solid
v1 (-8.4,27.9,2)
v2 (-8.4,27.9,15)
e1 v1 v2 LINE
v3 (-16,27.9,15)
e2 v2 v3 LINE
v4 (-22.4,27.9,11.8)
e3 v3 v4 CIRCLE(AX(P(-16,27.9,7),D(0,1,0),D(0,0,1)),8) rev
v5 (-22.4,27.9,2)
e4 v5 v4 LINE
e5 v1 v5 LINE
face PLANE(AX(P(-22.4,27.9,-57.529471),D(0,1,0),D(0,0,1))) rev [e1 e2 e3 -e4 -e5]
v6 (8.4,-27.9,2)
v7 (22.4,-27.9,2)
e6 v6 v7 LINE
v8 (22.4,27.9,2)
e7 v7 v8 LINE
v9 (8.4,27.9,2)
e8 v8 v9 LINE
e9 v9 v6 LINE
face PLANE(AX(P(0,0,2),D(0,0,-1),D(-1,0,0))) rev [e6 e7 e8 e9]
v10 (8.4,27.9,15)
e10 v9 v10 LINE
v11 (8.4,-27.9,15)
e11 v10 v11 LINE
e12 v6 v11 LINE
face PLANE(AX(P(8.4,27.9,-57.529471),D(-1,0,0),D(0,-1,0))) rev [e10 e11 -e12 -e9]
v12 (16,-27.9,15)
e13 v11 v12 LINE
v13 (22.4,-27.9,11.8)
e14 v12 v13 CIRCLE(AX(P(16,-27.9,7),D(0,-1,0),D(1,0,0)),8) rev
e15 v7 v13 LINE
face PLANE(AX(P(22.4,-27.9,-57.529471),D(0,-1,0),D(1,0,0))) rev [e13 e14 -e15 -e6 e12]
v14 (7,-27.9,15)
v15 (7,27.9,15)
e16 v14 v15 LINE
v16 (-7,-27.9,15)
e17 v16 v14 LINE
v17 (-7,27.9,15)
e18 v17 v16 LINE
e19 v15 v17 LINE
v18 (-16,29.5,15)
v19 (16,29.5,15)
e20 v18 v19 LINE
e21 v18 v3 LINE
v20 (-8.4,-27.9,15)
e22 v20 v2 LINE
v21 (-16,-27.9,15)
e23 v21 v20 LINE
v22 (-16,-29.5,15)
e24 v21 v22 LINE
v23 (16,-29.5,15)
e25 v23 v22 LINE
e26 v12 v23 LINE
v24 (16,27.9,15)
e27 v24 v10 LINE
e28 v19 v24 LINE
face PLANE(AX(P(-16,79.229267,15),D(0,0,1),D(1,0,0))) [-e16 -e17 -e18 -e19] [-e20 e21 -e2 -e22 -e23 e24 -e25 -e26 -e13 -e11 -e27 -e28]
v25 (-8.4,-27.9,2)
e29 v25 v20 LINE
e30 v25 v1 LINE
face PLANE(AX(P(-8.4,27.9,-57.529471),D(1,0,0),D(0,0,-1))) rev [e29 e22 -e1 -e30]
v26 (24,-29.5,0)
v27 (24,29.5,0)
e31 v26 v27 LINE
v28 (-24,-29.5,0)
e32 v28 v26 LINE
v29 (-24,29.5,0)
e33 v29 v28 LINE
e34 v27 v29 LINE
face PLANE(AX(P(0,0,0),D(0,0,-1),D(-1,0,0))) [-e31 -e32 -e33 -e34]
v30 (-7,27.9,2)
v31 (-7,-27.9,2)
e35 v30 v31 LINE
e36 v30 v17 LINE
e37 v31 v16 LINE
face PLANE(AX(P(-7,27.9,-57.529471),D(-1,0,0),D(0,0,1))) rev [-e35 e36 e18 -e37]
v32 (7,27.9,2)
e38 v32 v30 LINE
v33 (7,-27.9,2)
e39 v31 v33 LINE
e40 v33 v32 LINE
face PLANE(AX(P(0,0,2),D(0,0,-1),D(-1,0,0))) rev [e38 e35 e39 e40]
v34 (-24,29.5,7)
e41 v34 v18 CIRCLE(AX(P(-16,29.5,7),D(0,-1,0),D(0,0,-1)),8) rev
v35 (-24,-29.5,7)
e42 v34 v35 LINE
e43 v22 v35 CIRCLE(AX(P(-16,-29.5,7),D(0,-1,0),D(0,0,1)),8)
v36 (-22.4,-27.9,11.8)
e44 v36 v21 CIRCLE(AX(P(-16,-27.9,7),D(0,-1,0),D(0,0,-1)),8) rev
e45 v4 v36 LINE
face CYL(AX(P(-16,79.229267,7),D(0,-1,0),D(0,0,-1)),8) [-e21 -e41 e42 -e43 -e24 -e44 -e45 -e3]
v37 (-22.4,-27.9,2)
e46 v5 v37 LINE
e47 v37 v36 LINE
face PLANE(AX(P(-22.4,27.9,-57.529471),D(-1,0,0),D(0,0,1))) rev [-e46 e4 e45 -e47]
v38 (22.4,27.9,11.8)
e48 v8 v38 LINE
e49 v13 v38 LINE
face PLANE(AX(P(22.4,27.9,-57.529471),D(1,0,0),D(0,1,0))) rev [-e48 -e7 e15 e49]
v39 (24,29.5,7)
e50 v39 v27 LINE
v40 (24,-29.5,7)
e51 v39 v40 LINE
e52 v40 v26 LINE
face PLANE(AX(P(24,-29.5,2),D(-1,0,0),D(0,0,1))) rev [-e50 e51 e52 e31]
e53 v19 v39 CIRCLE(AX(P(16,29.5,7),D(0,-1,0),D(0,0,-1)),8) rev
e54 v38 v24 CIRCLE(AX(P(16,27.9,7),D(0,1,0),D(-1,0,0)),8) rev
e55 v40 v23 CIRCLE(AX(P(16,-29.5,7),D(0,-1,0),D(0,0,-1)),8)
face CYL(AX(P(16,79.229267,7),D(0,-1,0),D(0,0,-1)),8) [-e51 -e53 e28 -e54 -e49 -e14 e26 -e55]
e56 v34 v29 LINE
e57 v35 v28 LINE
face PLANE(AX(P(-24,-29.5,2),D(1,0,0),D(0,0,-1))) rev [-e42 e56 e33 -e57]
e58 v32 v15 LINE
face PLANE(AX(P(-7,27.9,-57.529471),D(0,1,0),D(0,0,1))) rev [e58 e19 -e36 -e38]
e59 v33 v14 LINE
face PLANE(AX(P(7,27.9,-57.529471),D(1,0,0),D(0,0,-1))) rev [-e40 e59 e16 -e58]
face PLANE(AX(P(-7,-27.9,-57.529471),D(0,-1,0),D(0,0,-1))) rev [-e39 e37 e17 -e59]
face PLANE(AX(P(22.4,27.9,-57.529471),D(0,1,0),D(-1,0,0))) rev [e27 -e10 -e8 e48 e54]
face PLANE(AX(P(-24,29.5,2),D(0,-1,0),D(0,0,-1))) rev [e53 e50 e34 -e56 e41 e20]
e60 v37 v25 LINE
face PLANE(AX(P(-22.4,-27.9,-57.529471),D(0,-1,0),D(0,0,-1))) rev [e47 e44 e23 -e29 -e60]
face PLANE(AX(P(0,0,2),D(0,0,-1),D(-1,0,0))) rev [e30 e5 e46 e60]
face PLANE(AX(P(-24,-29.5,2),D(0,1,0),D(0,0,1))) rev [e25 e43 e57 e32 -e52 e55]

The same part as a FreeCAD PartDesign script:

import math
import FreeCAD as App
import Part
import Sketcher

V = App.Vector
Q = App.Units.Quantity

doc = App.newDocument("Part")
body = doc.addObject("PartDesign::Body", "Body")

# Sketch on XY plane
sketch1 = doc.addObject("Sketcher::SketchObject", "Sketch")
body.addObject(sketch1)
sketch1.AttachmentSupport = (doc.XY_Plane, [""])
sketch1.MapMode = "FlatFace"
sketch1.addGeometry(Part.LineSegment(V(-24, 30, 0), V(-24, -30, 0)), False)
sketch1.addGeometry(Part.LineSegment(V(-24, -30, 0), V(24, -30, 0)), False)
sketch1.addGeometry(Part.LineSegment(V(24, -30, 0), V(24, 30, 0)), False)
sketch1.addGeometry(Part.LineSegment(V(24, 30, 0), V(-24, 30, 0)), False)
sketch1.addConstraint(Sketcher.Constraint("Coincident", 0, 2, 1, 1))
sketch1.addConstraint(Sketcher.Constraint("Coincident", 1, 2, 2, 1))
sketch1.addConstraint(Sketcher.Constraint("Coincident", 2, 2, 3, 1))
sketch1.addConstraint(Sketcher.Constraint("Coincident", 3, 2, 0, 1))
sketch1.addConstraint(Sketcher.Constraint("Vertical", 0))
sketch1.addConstraint(Sketcher.Constraint("Horizontal", 1))
sketch1.addConstraint(Sketcher.Constraint("Vertical", 2))
sketch1.addConstraint(Sketcher.Constraint("Horizontal", 3))
sketch1.addConstraint(Sketcher.Constraint("Symmetric", 0, 2, 2, 2, -1, 1))
sketch1.addConstraint(Sketcher.Constraint("DistanceX", 1, 1, 1, 2, Q("48 mm")))
sketch1.addConstraint(Sketcher.Constraint("DistanceY", 0, 2, 0, 1, Q("59 mm")))
pad1 = doc.addObject("PartDesign::Pad", "Pad")
body.addObject(pad1)
pad1.Profile = sketch1
pad1.Length = 2

# Sketch on XZ plane
sketch2 = doc.addObject("Sketcher::SketchObject", "Sketch001")
body.addObject(sketch2)
sketch2.AttachmentSupport = (doc.XZ_Plane, [""])
sketch2.MapMode = "FlatFace"
sketch2.AttachmentOffset = App.Placement(V(0, 0, 29.5), App.Rotation())
sketch2.addGeometry(Part.LineSegment(V(16, 15, 0), V(-16, 15, 0)), False)
sketch2.addGeometry(Part.ArcOfCircle(Part.Circle(V(-16, 7, 0), V(0, 0, 1), 8), math.radians(90), math.radians(180)), False)
sketch2.addGeometry(Part.LineSegment(V(-24, 7, 0), V(-24, 2, 0)), False)
sketch2.addGeometry(Part.LineSegment(V(-24, 2, 0), V(24, 2, 0)), False)
sketch2.addGeometry(Part.LineSegment(V(24, 2, 0), V(24, 7, 0)), False)
sketch2.addGeometry(Part.ArcOfCircle(Part.Circle(V(16, 7, 0), V(0, 0, 1), 8), math.radians(0), math.radians(90)), False)
sketch2.addConstraint(Sketcher.Constraint("Tangent", 0, 2, 1, 1))
sketch2.addConstraint(Sketcher.Constraint("Tangent", 1, 2, 2, 1))
sketch2.addConstraint(Sketcher.Constraint("Coincident", 2, 2, 3, 1))
sketch2.addConstraint(Sketcher.Constraint("Coincident", 3, 2, 4, 1))
sketch2.addConstraint(Sketcher.Constraint("Tangent", 4, 2, 5, 1))
sketch2.addConstraint(Sketcher.Constraint("Tangent", 5, 2, 0, 1))
sketch2.addConstraint(Sketcher.Constraint("Horizontal", 0))
sketch2.addConstraint(Sketcher.Constraint("Vertical", 2))
sketch2.addConstraint(Sketcher.Constraint("Horizontal", 3))
sketch2.addConstraint(Sketcher.Constraint("Vertical", 4))
sketch2.addConstraint(Sketcher.Constraint("Equal", 1, 5))
sketch2.addConstraint(Sketcher.Constraint("Radius", 1, Q("8 mm")))
sketch2.addConstraint(Sketcher.Constraint("DistanceX", 0, 2, 0, 1, Q("32 mm")))
sketch2.addConstraint(Sketcher.Constraint("DistanceY", 2, 2, 2, 1, Q("5 mm")))
sketch2.addConstraint(Sketcher.Constraint("DistanceX", 1, 3, -1, 1, Q("16 mm")))
sketch2.addConstraint(Sketcher.Constraint("DistanceY", -1, 1, 1, 3, Q("7 mm")))
pad2 = doc.addObject("PartDesign::Pad", "Pad001")
body.addObject(pad2)
pad2.Profile = sketch2
pad2.Length = 59
pad2.Reversed = True

# Sketch on XY plane
sketch3 = doc.addObject("Sketcher::SketchObject", "Sketch002")
body.addObject(sketch3)
sketch3.AttachmentSupport = (doc.XY_Plane, [""])
sketch3.MapMode = "FlatFace"
sketch3.AttachmentOffset = App.Placement(V(0, 0, 15), App.Rotation())
sketch3.addGeometry(Part.LineSegment(V(-7, 28, 0), V(-7, -28, 0)), False)
sketch3.addGeometry(Part.LineSegment(V(-7, -28, 0), V(7, -28, 0)), False)
sketch3.addGeometry(Part.LineSegment(V(7, -28, 0), V(7, 28, 0)), False)
sketch3.addGeometry(Part.LineSegment(V(7, 28, 0), V(-7, 28, 0)), False)
sketch3.addGeometry(Part.LineSegment(V(8, 28, 0), V(8, -28, 0)), False)
sketch3.addGeometry(Part.LineSegment(V(8, -28, 0), V(22, -28, 0)), False)
sketch3.addGeometry(Part.LineSegment(V(22, -28, 0), V(22, 28, 0)), False)
sketch3.addGeometry(Part.LineSegment(V(22, 28, 0), V(8, 28, 0)), False)
sketch3.addGeometry(Part.LineSegment(V(-22, 28, 0), V(-22, -28, 0)), False)
sketch3.addGeometry(Part.LineSegment(V(-22, -28, 0), V(-8, -28, 0)), False)
sketch3.addGeometry(Part.LineSegment(V(-8, -28, 0), V(-8, 28, 0)), False)
sketch3.addGeometry(Part.LineSegment(V(-8, 28, 0), V(-22, 28, 0)), False)
sketch3.addConstraint(Sketcher.Constraint("Coincident", 0, 2, 1, 1))
sketch3.addConstraint(Sketcher.Constraint("Coincident", 1, 2, 2, 1))
sketch3.addConstraint(Sketcher.Constraint("Coincident", 2, 2, 3, 1))
sketch3.addConstraint(Sketcher.Constraint("Coincident", 3, 2, 0, 1))
sketch3.addConstraint(Sketcher.Constraint("Coincident", 4, 2, 5, 1))
sketch3.addConstraint(Sketcher.Constraint("Coincident", 5, 2, 6, 1))
sketch3.addConstraint(Sketcher.Constraint("Coincident", 6, 2, 7, 1))
sketch3.addConstraint(Sketcher.Constraint("Coincident", 7, 2, 4, 1))
sketch3.addConstraint(Sketcher.Constraint("Coincident", 8, 2, 9, 1))
sketch3.addConstraint(Sketcher.Constraint("Coincident", 9, 2, 10, 1))
sketch3.addConstraint(Sketcher.Constraint("Coincident", 10, 2, 11, 1))
sketch3.addConstraint(Sketcher.Constraint("Coincident", 11, 2, 8, 1))
sketch3.addConstraint(Sketcher.Constraint("Vertical", 0))
sketch3.addConstraint(Sketcher.Constraint("Horizontal", 1))
sketch3.addConstraint(Sketcher.Constraint("Vertical", 2))
sketch3.addConstraint(Sketcher.Constraint("Horizontal", 3))
sketch3.addConstraint(Sketcher.Constraint("Vertical", 4))
sketch3.addConstraint(Sketcher.Constraint("Horizontal", 5))
sketch3.addConstraint(Sketcher.Constraint("Vertical", 6))
sketch3.addConstraint(Sketcher.Constraint("Horizontal", 7))
sketch3.addConstraint(Sketcher.Constraint("Vertical", 8))
sketch3.addConstraint(Sketcher.Constraint("Horizontal", 9))
sketch3.addConstraint(Sketcher.Constraint("Vertical", 10))
sketch3.addConstraint(Sketcher.Constraint("Horizontal", 11))
sketch3.addConstraint(Sketcher.Constraint("Symmetric", 0, 2, 2, 2, -1, 1))
sketch3.addConstraint(Sketcher.Constraint("Symmetric", 6, 2, 8, 2, -1, 1))
sketch3.addConstraint(Sketcher.Constraint("Symmetric", 4, 2, 10, 2, -1, 1))
sketch3.addConstraint(Sketcher.Constraint("Horizontal", 1, 2, 4, 2))
sketch3.addConstraint(Sketcher.Constraint("Horizontal", 3, 2, 6, 2))
sketch3.addConstraint(Sketcher.Constraint("Equal", 3, 5))
sketch3.addConstraint(Sketcher.Constraint("DistanceX", 1, 1, 1, 2, Q("14 mm")))
sketch3.addConstraint(Sketcher.Constraint("DistanceY", 0, 2, 0, 1, Q("55.8 mm")))
sketch3.addConstraint(Sketcher.Constraint("DistanceX", -1, 1, 4, 2, Q("8.4 mm")))
pocket1 = doc.addObject("PartDesign::Pocket", "Pocket")
body.addObject(pocket1)
pocket1.Profile = sketch3
pocket1.Length = 13

doc.recompute()
